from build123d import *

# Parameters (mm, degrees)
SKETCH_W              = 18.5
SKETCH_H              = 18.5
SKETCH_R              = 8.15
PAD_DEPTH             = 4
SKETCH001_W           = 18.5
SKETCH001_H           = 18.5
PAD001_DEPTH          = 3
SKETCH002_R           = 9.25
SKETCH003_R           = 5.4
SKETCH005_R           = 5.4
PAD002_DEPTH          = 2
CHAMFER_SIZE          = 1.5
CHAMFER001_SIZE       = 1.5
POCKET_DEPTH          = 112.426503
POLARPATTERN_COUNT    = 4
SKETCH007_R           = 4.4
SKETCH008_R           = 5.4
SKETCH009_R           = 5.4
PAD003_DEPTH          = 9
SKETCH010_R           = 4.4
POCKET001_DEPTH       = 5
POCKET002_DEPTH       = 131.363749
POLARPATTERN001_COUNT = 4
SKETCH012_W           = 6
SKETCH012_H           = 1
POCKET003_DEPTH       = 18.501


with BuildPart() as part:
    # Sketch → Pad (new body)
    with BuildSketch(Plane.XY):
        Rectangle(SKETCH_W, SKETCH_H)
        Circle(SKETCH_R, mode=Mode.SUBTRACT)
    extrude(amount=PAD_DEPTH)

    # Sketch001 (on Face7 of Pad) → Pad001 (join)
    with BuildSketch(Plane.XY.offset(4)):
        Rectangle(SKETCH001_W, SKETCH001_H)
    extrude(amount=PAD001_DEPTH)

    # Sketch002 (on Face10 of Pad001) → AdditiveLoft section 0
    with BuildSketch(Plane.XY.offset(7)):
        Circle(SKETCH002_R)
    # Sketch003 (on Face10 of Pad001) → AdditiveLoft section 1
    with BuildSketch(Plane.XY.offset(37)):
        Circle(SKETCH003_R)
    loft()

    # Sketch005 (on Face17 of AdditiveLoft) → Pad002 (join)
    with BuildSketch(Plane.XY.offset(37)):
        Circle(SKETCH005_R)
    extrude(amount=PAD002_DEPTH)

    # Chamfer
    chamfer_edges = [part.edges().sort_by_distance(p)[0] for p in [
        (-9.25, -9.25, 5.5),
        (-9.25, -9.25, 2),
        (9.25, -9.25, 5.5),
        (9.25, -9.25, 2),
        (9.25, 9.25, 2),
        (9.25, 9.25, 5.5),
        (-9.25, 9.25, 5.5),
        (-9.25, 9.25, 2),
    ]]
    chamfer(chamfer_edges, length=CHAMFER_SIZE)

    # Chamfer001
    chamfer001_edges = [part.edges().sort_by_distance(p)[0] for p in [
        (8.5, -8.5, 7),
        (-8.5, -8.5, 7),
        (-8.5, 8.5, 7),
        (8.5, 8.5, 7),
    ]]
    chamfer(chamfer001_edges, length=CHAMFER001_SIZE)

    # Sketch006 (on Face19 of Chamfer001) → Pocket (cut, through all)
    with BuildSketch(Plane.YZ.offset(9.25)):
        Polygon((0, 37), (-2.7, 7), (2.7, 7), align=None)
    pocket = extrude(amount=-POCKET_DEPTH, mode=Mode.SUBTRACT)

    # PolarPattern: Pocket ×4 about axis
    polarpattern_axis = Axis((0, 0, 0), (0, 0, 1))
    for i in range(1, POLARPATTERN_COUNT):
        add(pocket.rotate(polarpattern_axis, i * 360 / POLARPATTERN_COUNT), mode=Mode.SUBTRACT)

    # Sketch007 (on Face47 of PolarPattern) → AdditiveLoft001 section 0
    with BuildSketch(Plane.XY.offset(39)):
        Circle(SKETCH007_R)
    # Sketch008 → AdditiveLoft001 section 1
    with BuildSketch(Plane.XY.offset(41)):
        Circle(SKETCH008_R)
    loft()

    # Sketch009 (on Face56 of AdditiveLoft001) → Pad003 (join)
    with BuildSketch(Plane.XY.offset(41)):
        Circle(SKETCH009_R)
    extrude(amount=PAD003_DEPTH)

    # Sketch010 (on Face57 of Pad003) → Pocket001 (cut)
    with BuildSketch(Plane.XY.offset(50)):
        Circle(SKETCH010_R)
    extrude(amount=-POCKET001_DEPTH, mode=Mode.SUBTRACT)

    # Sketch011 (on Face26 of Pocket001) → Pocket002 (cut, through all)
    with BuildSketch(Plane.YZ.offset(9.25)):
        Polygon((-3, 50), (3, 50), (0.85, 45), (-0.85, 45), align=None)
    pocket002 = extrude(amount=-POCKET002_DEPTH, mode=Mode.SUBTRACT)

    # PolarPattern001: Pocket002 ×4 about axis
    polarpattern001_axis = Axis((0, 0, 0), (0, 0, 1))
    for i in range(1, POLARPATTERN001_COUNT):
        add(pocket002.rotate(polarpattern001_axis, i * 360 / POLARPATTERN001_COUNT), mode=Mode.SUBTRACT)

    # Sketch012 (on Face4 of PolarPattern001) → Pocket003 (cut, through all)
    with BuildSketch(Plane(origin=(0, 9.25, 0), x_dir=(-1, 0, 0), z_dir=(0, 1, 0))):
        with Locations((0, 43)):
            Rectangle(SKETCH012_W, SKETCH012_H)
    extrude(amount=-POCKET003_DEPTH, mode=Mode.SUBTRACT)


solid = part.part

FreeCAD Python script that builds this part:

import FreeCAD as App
import Part
import Sketcher


def edges_at(feature, points):
    """Names of the edges that pass closest to the given points."""
    edges = feature.Shape.Edges
    near = lambda p: min(range(len(edges)), key=lambda i: edges[i].distToShape(Part.Vertex(*p))[0])
    return sorted({f"Edge{near(p) + 1}" for p in points})

doc = App.newDocument("Part")
body = doc.addObject("PartDesign::Body", "Body")

# Sketch on XY plane
sketch1 = body.newObject("Sketcher::SketchObject", "Sketch")
sketch1.AttachmentSupport = (doc.getObject("XY_Plane"), [""])
sketch1.MapMode = "FlatFace"
sketch1.addGeometry([
    Part.LineSegment(App.Vector(-9, 9, 0), App.Vector(-9, -9, 0)),  # 0
    Part.LineSegment(App.Vector(-9, -9, 0), App.Vector(9, -9, 0)),  # 1
    Part.LineSegment(App.Vector(9, -9, 0), App.Vector(9, 9, 0)),  # 2
    Part.LineSegment(App.Vector(9, 9, 0), App.Vector(-9, 9, 0)),  # 3
    Part.Circle(App.Vector(0, 0, 0), App.Vector(0, 0, 1), 8),  # 4
], False)
sketch1.addConstraint([
    Sketcher.Constraint("Coincident", 0, 2, 1, 1),
    Sketcher.Constraint("Coincident", 1, 2, 2, 1),
    Sketcher.Constraint("Coincident", 2, 2, 3, 1),
    Sketcher.Constraint("Coincident", 3, 2, 0, 1),
    Sketcher.Constraint("Vertical", 0),
    Sketcher.Constraint("Horizontal", 1),
    Sketcher.Constraint("Vertical", 2),
    Sketcher.Constraint("Horizontal", 3),
    Sketcher.Constraint("Coincident", 4, 3, -1, 1),
    Sketcher.Constraint("Symmetric", 0, 2, 2, 2, -1, 1),
    Sketcher.Constraint("Equal", 3, 0),
    Sketcher.Constraint("Diameter", 4, 16.3),
    Sketcher.Constraint("DistanceX", 1, 1, 1, 2, 18.5),
])
pad1 = body.newObject("PartDesign::Pad", "Pad")
pad1.Profile = sketch1
pad1.Length = 4

# Sketch on XY plane
sketch2 = body.newObject("Sketcher::SketchObject", "Sketch001")
sketch2.AttachmentSupport = (doc.getObject("XY_Plane"), [""])
sketch2.MapMode = "FlatFace"
sketch2.AttachmentOffset = App.Placement(App.Vector(0, 0, 4), App.Rotation())
sketch2.addGeometry([
    Part.LineSegment(App.Vector(-9, 9, 0), App.Vector(-9, -9, 0)),
    Part.LineSegment(App.Vector(-9, -9, 0), App.Vector(9, -9, 0)),
    Part.LineSegment(App.Vector(9, -9, 0), App.Vector(9, 9, 0)),
    Part.LineSegment(App.Vector(9, 9, 0), App.Vector(-9, 9, 0)),
], False)
sketch2.addConstraint([
    Sketcher.Constraint("Coincident", 0, 2, 1, 1),
    Sketcher.Constraint("Coincident", 1, 2, 2, 1),
    Sketcher.Constraint("Coincident", 2, 2, 3, 1),
    Sketcher.Constraint("Coincident", 3, 2, 0, 1),
    Sketcher.Constraint("Vertical", 0),
    Sketcher.Constraint("Horizontal", 1),
    Sketcher.Constraint("Vertical", 2),
    Sketcher.Constraint("Horizontal", 3),
    Sketcher.Constraint("Symmetric", 0, 2, 2, 2, -1, 1),
    Sketcher.Constraint("Equal", 3, 0),
    Sketcher.Constraint("DistanceX", 1, 1, 1, 2, 18.5),
])
pad2 = body.newObject("PartDesign::Pad", "Pad001")
pad2.Profile = sketch2
pad2.Length = 3

# Sketch on XY plane
sketch3 = body.newObject("Sketcher::SketchObject", "Sketch002")
sketch3.AttachmentSupport = (doc.getObject("XY_Plane"), [""])
sketch3.MapMode = "FlatFace"
sketch3.AttachmentOffset = App.Placement(App.Vector(0, 0, 7), App.Rotation())
sketch3.addGeometry(Part.Circle(App.Vector(0, 0, 0), App.Vector(0, 0, 1), 9), False)
sketch3.addConstraint([
    Sketcher.Constraint("Coincident", 0, 3, -1, 1),
    Sketcher.Constraint("Diameter", 0, 18.5),
])

# Sketch on XY plane
sketch4 = body.newObject("Sketcher::SketchObject", "Sketch003")
sketch4.AttachmentSupport = (doc.getObject("XY_Plane"), [""])
sketch4.MapMode = "FlatFace"
sketch4.AttachmentOffset = App.Placement(App.Vector(0, 0, 37), App.Rotation())
sketch4.addGeometry(Part.Circle(App.Vector(0, 0, 0), App.Vector(0, 0, 1), 5), False)
sketch4.addConstraint([
    Sketcher.Constraint("Coincident", 0, 3, -1, 1),
    Sketcher.Constraint("Diameter", 0, 10.8),
])

additiveloft = body.newObject("PartDesign::AdditiveLoft", "AdditiveLoft")
additiveloft.Profile = sketch3
additiveloft.Sections = [sketch4]

# Sketch on XY plane
sketch5 = body.newObject("Sketcher::SketchObject", "Sketch004")
sketch5.AttachmentSupport = (doc.getObject("XY_Plane"), [""])
sketch5.MapMode = "FlatFace"
sketch5.AttachmentOffset = App.Placement(App.Vector(0, 0, 37), App.Rotation())
sketch5.addGeometry(Part.Circle(App.Vector(0, 0, 0), App.Vector(0, 0, 1), 5), False)
sketch5.addConstraint([
    Sketcher.Constraint("Coincident", 0, 3, -1, 1),
    Sketcher.Constraint("Diameter", 0, 10.8),
])
pad3 = body.newObject("PartDesign::Pad", "Pad002")
pad3.Profile = sketch5
pad3.Length = 2
doc.recompute()

chamfer = body.newObject("PartDesign::Chamfer", "Chamfer")
chamfer.Base = (pad3, edges_at(pad3, [
    (-9.25, -9.25, 3.5),
    (-9.25, -9.25, 3.5),
    (9.25, -9.25, 3.5),
    (9.25, -9.25, 3.5),
    (9.25, 9.25, 3.5),
    (9.25, 9.25, 3.5),
    (-9.25, 9.25, 3.5),
    (-9.25, 9.25, 3.5),
]))
chamfer.Size = 1.5
doc.recompute()

chamfer2 = body.newObject("PartDesign::Chamfer", "Chamfer001")
chamfer2.Base = (chamfer, edges_at(chamfer, [
    (8.5, -8.5, 7),
    (-8.5, -8.5, 7),
    (-8.5, 8.5, 7),
    (8.5, 8.5, 7),
]))
chamfer2.Size = 1.5

# Sketch on YZ plane
sketch6 = body.newObject("Sketcher::SketchObject", "Sketch005")
sketch6.AttachmentSupport = (doc.getObject("YZ_Plane"), [""])
sketch6.MapMode = "FlatFace"
sketch6.AttachmentOffset = App.Placement(App.Vector(0, 0, 9.25), App.Rotation())
sketch6.addGeometry([
    Part.LineSegment(App.Vector(0, 37, 0), App.Vector(-3, 7, 0)),
    Part.LineSegment(App.Vector(-3, 7, 0), App.Vector(3, 7, 0)),
    Part.LineSegment(App.Vector(3, 7, 0), App.Vector(0, 37, 0)),
], False)
sketch6.addConstraint([
    Sketcher.Constraint("Coincident", 0, 2, 1, 1),
    Sketcher.Constraint("Coincident", 1, 2, 2, 1),
    Sketcher.Constraint("Coincident", 2, 2, 0, 1),
    Sketcher.Constraint("Horizontal", 1),
    Sketcher.Constraint("PointOnObject", 2, 2, -2),
    Sketcher.Constraint("Equal", 0, 2),
    Sketcher.Constraint("DistanceX", 1, 1, 1, 2, 5.4),
    Sketcher.Constraint("DistanceY", -1, 1, 0, 2, 7.0),
    Sketcher.Constraint("DistanceY", -1, 1, 2, 2, 37.0),
])
pocket1 = body.newObject("PartDesign::Pocket", "Pocket")
pocket1.Profile = sketch6
pocket1.Type = "ThroughAll"
doc.recompute()

polarpattern = body.newObject("PartDesign::PolarPattern", "PolarPattern")
polarpattern.Originals = [pocket1]
polarpattern.Axis = (doc.getObject("Z_Axis"), [""])
polarpattern.Angle = 360
polarpattern.Occurrences = 4
body.Tip = polarpattern

# Sketch on XY plane
sketch7 = body.newObject("Sketcher::SketchObject", "Sketch006")
sketch7.AttachmentSupport = (doc.getObject("XY_Plane"), [""])
sketch7.MapMode = "FlatFace"
sketch7.AttachmentOffset = App.Placement(App.Vector(0, 0, 39), App.Rotation())
sketch7.addGeometry(Part.Circle(App.Vector(0, 0, 0), App.Vector(0, 0, 1), 4.4), False)
sketch7.addConstraint([
    Sketcher.Constraint("Coincident", 0, 3, -1, 1),
    Sketcher.Constraint("Diameter", 0, 8.8),
])

# Sketch on XY plane
sketch8 = body.newObject("Sketcher::SketchObject", "Sketch007")
sketch8.AttachmentSupport = (doc.getObject("XY_Plane"), [""])
sketch8.MapMode = "FlatFace"
sketch8.AttachmentOffset = App.Placement(App.Vector(0, 0, 41), App.Rotation())
sketch8.addGeometry(Part.Circle(App.Vector(0, 0, 0), App.Vector(0, 0, 1), 5), False)
sketch8.addConstraint([
    Sketcher.Constraint("Coincident", 0, 3, -1, 1),
    Sketcher.Constraint("Diameter", 0, 10.8),
])

additiveloft2 = body.newObject("PartDesign::AdditiveLoft", "AdditiveLoft001")
additiveloft2.Profile = sketch7
additiveloft2.Sections = [sketch8]

# Sketch on XY plane
sketch9 = body.newObject("Sketcher::SketchObject", "Sketch008")
sketch9.AttachmentSupport = (doc.getObject("XY_Plane"), [""])
sketch9.MapMode = "FlatFace"
sketch9.AttachmentOffset = App.Placement(App.Vector(0, 0, 41), App.Rotation())
sketch9.addGeometry(Part.Circle(App.Vector(0, 0, 0), App.Vector(0, 0, 1), 5), False)
sketch9.addConstraint([
    Sketcher.Constraint("Coincident", 0, 3, -1, 1),
    Sketcher.Constraint("Diameter", 0, 10.8),
])
pad4 = body.newObject("PartDesign::Pad", "Pad003")
pad4.Profile = sketch9
pad4.Length = 9

# Sketch on XY plane
sketch10 = body.newObject("Sketcher::SketchObject", "Sketch009")
sketch10.AttachmentSupport = (doc.getObject("XY_Plane"), [""])
sketch10.MapMode = "FlatFace"
sketch10.AttachmentOffset = App.Placement(App.Vector(0, 0, 50), App.Rotation())
sketch10.addGeometry(Part.Circle(App.Vector(0, 0, 0), App.Vector(0, 0, 1), 4.4), False)
sketch10.addConstraint([
    Sketcher.Constraint("Coincident", 0, 3, -1, 1),
    Sketcher.Constraint("Diameter", 0, 8.8),
])
pocket2 = body.newObject("PartDesign::Pocket", "Pocket001")
pocket2.Profile = sketch10
pocket2.Length = 5

# Sketch on YZ plane
sketch11 = body.newObject("Sketcher::SketchObject", "Sketch010")
sketch11.AttachmentSupport = (doc.getObject("YZ_Plane"), [""])
sketch11.MapMode = "FlatFace"
sketch11.AttachmentOffset = App.Placement(App.Vector(0, 0, 9.25), App.Rotation())
sketch11.addGeometry([
    Part.LineSegment(App.Vector(3, 50, 0), App.Vector(-3, 50, 0)),
    Part.LineSegment(App.Vector(-3, 50, 0), App.Vector(-0.8, 45, 0)),
    Part.LineSegment(App.Vector(-0.8, 45, 0), App.Vector(0.8, 45, 0)),
    Part.LineSegment(App.Vector(0.8, 45, 0), App.Vector(3, 50, 0)),
], False)
sketch11.addConstraint([
    Sketcher.Constraint("Coincident", 0, 2, 1, 1),
    Sketcher.Constraint("Coincident", 1, 2, 2, 1),
    Sketcher.Constraint("Coincident", 2, 2, 3, 1),
    Sketcher.Constraint("Coincident", 3, 2, 0, 1),
    Sketcher.Constraint("Horizontal", 0),
    Sketcher.Constraint("Horizontal", 2),
    Sketcher.Constraint("Equal", 1, 3),
    Sketcher.Constraint("DistanceX", 0, 2, 0, 1, 6.0),
    Sketcher.Constraint("DistanceX", 2, 1, 2, 2, 1.7),
    Sketcher.Constraint("DistanceX", 0, 2, -1, 1, 3.0),
    Sketcher.Constraint("DistanceY", -1, 1, 0, 2, 50.0),
    Sketcher.Constraint("DistanceY", -1, 1, 1, 2, 45.0),
])
pocket3 = body.newObject("PartDesign::Pocket", "Pocket002")
pocket3.Profile = sketch11
pocket3.Type = "ThroughAll"
doc.recompute()

polarpattern2 = body.newObject("PartDesign::PolarPattern", "PolarPattern001")
polarpattern2.Originals = [pocket3]
polarpattern2.Axis = (doc.getObject("Z_Axis"), [""])
polarpattern2.Angle = 360
polarpattern2.Occurrences = 4
body.Tip = polarpattern2

# Sketch on XZ plane
sketch12 = body.newObject("Sketcher::SketchObject", "Sketch011")
sketch12.AttachmentSupport = (doc.getObject("XZ_Plane"), [""])
sketch12.MapMode = "FlatFace"
sketch12.AttachmentOffset = App.Placement(App.Vector(0, 0, -9.25), App.Rotation())
sketch12.addGeometry([
    Part.LineSegment(App.Vector(3, 43.5, 0), App.Vector(3, 42.5, 0)),
    Part.LineSegment(App.Vector(3, 42.5, 0), App.Vector(-3, 42.5, 0)),
    Part.LineSegment(App.Vector(-3, 42.5, 0), App.Vector(-3, 43.5, 0)),
    Part.LineSegment(App.Vector(-3, 43.5, 0), App.Vector(3, 43.5, 0)),
], False)
sketch12.addConstraint([
    Sketcher.Constraint("Coincident", 0, 2, 1, 1),
    Sketcher.Constraint("Coincident", 1, 2, 2, 1),
    Sketcher.Constraint("Coincident", 2, 2, 3, 1),
    Sketcher.Constraint("Coincident", 3, 2, 0, 1),
    Sketcher.Constraint("Vertical", 0),
    Sketcher.Constraint("Horizontal", 1),
    Sketcher.Constraint("Vertical", 2),
    Sketcher.Constraint("Horizontal", 3),
    Sketcher.Constraint("DistanceX", 1, 2, 1, 1, 6.0),
    Sketcher.Constraint("DistanceY", 0, 2, 0, 1, 1.0),
    Sketcher.Constraint("DistanceX", -1, 1, 0, 2, 3.0),
    Sketcher.Constraint("DistanceY", -1, 1, 0, 2, 42.5),
])
pocket4 = body.newObject("PartDesign::Pocket", "Pocket003")
pocket4.Profile = sketch12
pocket4.Type = "ThroughAll"
pocket4.Reversed = True

doc.recompute()
